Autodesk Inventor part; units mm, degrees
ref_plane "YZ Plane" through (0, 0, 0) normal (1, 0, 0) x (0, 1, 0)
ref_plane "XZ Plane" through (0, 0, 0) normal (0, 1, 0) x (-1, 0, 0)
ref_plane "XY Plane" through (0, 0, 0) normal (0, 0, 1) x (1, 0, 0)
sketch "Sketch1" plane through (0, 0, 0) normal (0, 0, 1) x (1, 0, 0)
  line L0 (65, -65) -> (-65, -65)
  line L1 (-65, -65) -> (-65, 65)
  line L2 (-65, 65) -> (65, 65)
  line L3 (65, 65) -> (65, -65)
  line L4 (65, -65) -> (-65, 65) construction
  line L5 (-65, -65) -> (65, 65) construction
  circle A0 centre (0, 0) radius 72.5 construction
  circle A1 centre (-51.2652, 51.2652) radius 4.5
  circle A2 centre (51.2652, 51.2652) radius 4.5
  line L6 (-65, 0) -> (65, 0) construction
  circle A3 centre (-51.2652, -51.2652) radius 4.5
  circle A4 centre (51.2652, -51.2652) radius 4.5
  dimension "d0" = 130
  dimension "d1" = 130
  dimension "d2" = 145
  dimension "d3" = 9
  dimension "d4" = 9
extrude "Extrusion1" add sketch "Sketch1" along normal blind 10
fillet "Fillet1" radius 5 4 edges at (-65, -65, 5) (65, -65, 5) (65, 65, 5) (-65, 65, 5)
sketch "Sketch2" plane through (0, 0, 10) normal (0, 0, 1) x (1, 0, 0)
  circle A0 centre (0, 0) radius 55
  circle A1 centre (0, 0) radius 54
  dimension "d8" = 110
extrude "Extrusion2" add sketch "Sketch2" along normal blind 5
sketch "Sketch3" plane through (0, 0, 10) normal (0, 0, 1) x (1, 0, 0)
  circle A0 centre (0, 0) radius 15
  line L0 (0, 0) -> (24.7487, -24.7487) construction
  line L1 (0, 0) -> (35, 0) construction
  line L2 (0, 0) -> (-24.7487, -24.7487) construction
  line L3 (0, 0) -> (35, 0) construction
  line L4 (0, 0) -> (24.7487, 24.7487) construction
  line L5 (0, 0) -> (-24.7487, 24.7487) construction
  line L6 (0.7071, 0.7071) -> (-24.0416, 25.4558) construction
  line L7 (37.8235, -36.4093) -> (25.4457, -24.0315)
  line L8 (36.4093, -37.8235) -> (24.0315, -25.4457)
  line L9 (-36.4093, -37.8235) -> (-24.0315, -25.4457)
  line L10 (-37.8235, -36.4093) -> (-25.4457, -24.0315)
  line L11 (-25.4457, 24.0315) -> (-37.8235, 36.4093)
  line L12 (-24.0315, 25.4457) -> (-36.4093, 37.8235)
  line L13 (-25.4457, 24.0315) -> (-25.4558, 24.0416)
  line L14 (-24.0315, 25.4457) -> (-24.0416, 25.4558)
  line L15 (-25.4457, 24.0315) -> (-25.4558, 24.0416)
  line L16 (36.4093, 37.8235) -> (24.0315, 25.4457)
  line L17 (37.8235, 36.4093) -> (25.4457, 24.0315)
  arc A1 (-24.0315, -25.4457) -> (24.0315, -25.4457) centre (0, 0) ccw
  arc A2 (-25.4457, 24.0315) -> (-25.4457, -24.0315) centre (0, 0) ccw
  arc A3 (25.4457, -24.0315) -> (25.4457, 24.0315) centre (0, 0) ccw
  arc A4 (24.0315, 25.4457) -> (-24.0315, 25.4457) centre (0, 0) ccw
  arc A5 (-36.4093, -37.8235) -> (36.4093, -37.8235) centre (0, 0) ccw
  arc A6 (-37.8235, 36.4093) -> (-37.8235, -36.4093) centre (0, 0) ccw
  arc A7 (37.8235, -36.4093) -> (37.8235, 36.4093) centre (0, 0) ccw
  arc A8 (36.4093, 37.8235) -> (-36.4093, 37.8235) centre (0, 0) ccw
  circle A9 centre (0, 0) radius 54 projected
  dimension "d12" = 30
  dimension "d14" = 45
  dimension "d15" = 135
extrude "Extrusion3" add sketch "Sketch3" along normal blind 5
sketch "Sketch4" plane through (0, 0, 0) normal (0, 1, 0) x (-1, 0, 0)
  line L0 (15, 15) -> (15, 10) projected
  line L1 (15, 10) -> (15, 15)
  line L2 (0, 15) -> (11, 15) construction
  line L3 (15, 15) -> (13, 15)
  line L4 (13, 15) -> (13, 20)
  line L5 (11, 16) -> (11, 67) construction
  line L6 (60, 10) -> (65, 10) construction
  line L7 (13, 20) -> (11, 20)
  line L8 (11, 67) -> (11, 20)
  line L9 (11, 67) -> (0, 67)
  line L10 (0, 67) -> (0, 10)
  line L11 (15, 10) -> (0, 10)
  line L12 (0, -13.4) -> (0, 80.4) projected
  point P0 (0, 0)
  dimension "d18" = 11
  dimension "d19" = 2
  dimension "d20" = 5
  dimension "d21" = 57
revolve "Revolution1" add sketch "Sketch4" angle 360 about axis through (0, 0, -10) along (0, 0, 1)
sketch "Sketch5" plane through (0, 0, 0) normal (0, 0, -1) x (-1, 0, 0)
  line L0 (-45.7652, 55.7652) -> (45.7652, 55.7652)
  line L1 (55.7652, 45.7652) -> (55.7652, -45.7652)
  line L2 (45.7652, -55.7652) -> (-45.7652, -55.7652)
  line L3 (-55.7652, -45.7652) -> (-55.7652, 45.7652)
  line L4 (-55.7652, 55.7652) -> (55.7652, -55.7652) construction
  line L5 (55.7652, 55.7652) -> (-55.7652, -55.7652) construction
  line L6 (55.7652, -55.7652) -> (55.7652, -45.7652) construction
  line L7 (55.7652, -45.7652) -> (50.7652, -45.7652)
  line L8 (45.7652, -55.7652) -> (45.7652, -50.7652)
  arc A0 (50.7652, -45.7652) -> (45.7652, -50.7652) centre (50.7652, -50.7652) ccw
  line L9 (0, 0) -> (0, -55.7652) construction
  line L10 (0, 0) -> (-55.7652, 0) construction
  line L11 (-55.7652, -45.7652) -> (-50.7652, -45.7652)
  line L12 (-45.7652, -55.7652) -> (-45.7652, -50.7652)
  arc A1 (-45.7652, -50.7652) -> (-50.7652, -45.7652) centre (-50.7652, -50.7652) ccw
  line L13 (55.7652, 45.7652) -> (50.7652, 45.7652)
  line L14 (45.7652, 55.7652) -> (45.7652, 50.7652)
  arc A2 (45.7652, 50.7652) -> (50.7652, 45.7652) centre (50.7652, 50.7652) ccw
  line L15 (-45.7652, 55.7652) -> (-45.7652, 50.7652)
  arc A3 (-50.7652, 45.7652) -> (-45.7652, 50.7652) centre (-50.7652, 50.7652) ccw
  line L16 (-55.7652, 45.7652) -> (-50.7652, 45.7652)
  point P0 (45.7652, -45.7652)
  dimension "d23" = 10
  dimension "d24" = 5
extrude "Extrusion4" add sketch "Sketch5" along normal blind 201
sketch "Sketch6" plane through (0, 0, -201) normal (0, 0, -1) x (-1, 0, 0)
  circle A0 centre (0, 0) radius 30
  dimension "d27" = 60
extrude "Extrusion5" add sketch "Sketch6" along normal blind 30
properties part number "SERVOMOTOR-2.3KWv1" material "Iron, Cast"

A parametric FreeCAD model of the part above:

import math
import FreeCAD as App
import Part
import Sketcher


def edges_at(feature, points):
    """Names of the edges that pass closest to the given points."""
    edges = feature.Shape.Edges
    near = lambda p: min(range(len(edges)), key=lambda i: edges[i].distToShape(Part.Vertex(*p))[0])
    return sorted({f"Edge{near(p) + 1}" for p in points})

doc = App.newDocument("Part")
body = doc.addObject("PartDesign::Body", "Body")

sketch1 = doc.addObject("Sketcher::SketchObject", "Sketch")
body.addObject(sketch1)
sketch1.AttachmentSupport = (doc.XY_Plane, [""])
sketch1.MapMode = "FlatFace"
sketch1.addGeometry([
    Part.LineSegment(App.Vector(-65, -65, 0), App.Vector(65, -65, 0)),
    Part.LineSegment(App.Vector(65, -65, 0), App.Vector(65, 65, 0)),
    Part.LineSegment(App.Vector(65, 65, 0), App.Vector(-65, 65, 0)),
    Part.LineSegment(App.Vector(-65, 65, 0), App.Vector(-65, -65, 0)),
    Part.Circle(App.Vector(-51.3, -51.3, 0), App.Vector(0, 0, 1), 4.5),
    Part.Circle(App.Vector(51.3, -51.3, 0), App.Vector(0, 0, 1), 4.5),
    Part.Circle(App.Vector(-51.3, 51.3, 0), App.Vector(0, 0, 1), 4.5),
    Part.Circle(App.Vector(51.3, 51.3, 0), App.Vector(0, 0, 1), 4.5),
], False)
sketch1.addConstraint([
    Sketcher.Constraint("Coincident", 0, 2, 1, 1),
    Sketcher.Constraint("Coincident", 1, 2, 2, 1),
    Sketcher.Constraint("Coincident", 2, 2, 3, 1),
    Sketcher.Constraint("Coincident", 3, 2, 0, 1),
    Sketcher.Constraint("Horizontal", 0),
    Sketcher.Constraint("Vertical", 1),
    Sketcher.Constraint("Horizontal", 2),
    Sketcher.Constraint("Vertical", 3),
    Sketcher.Constraint("Equal", 4, 5),
    Sketcher.Constraint("Equal", 5, 6),
    Sketcher.Constraint("Equal", 6, 7),
    Sketcher.Constraint("Symmetric", 5, 3, 6, 3, -1, 1),
    Sketcher.Constraint("Symmetric", 4, 3, 7, 3, -1, 1),
    Sketcher.Constraint("Symmetric", 0, 2, 2, 2, -1, 1),
    Sketcher.Constraint("Symmetric", 4, 3, 5, 3, -2),
    Sketcher.Constraint("Equal", 2, 1),
    Sketcher.Constraint("Diameter", 4, 9.0),
    Sketcher.Constraint("DistanceX", 0, 1, 0, 2, 130.0),
    Sketcher.Constraint("DistanceX", 4, 3, -1, 1, 51.2652),
    Sketcher.Constraint("DistanceY", 4, 3, -1, 1, 51.2652),
])
pad1 = doc.addObject("PartDesign::Pad", "Pad")
body.addObject(pad1)
pad1.Profile = sketch1
pad1.Length = 10
doc.recompute()

fillet = doc.addObject("PartDesign::Fillet", "Fillet")
body.addObject(fillet)
fillet.Base = (pad1, edges_at(pad1, [
    (-65, -65, 5),
    (65, -65, 5),
    (65, 65, 5),
    (-65, 65, 5),
]))
fillet.Radius = 5

sketch2 = doc.addObject("Sketcher::SketchObject", "Sketch001")
body.addObject(sketch2)
sketch2.AttachmentSupport = (doc.XY_Plane, [""])
sketch2.MapMode = "FlatFace"
sketch2.AttachmentOffset = App.Placement(App.Vector(0, 0, 10), App.Rotation())
sketch2.addGeometry([
    Part.Circle(App.Vector(0, 0, 0), App.Vector(0, 0, 1), 55),
    Part.Circle(App.Vector(0, 0, 0), App.Vector(0, 0, 1), 54),
], False)
sketch2.addConstraint([
    Sketcher.Constraint("Coincident", 0, 3, -1, 1),
    Sketcher.Constraint("Coincident", 1, 3, -1, 1),
    Sketcher.Constraint("Diameter", 0, 110.0),
    Sketcher.Constraint("Diameter", 1, 108.0),
])
pad2 = doc.addObject("PartDesign::Pad", "Pad001")
body.addObject(pad2)
pad2.Profile = sketch2
pad2.Length = 5

sketch3 = doc.addObject("Sketcher::SketchObject", "Sketch002")
body.addObject(sketch3)
sketch3.AttachmentSupport = (doc.XY_Plane, [""])
sketch3.MapMode = "FlatFace"
sketch3.AttachmentOffset = App.Placement(App.Vector(0, 0, 10), App.Rotation())
sketch3.addGeometry([
    Part.Circle(App.Vector(0, 0, 0), App.Vector(0, 0, 1), 54),
    Part.LineSegment(App.Vector(24, -25, 0), App.Vector(36, -38, 0)),
    Part.ArcOfCircle(Part.Circle(App.Vector(0, 0, 0), App.Vector(0, 0, 1), 53), math.radians(-134), math.radians(-46)),
    Part.LineSegment(App.Vector(-36, -38, 0), App.Vector(-24, -25, 0)),
    Part.ArcOfCircle(Part.Circle(App.Vector(0, 0, 0), App.Vector(0, 0, 1), 35), math.radians(-133), math.radians(-47)),
    Part.LineSegment(App.Vector(-25, -24, 0), App.Vector(-38, -36, 0)),
    Part.ArcOfCircle(Part.Circle(App.Vector(0, 0, 0), App.Vector(0, 0, 1), 53), math.radians(136), math.radians(224)),
    Part.LineSegment(App.Vector(-38, 36, 0), App.Vector(-25, 24, 0)),
    Part.ArcOfCircle(Part.Circle(App.Vector(0, 0, 0), App.Vector(0, 0, 1), 35), math.radians(137), math.radians(223)),
    Part.Circle(App.Vector(0, 0, 0), App.Vector(0, 0, 1), 15),
    Part.ArcOfCircle(Part.Circle(App.Vector(0, 0, 0), App.Vector(0, 0, 1), 53), math.radians(-44), math.radians(44)),
    Part.LineSegment(App.Vector(38, -36, 0), App.Vector(25, -24, 0)),
    Part.ArcOfCircle(Part.Circle(App.Vector(0, 0, 0), App.Vector(0, 0, 1), 35), math.radians(-43), math.radians(43)),
    Part.LineSegment(App.Vector(25, 24, 0), App.Vector(38, 36, 0)),
    Part.ArcOfCircle(Part.Circle(App.Vector(0, 0, 0), App.Vector(0, 0, 1), 35), math.radians(47), math.radians(133)),
    Part.LineSegment(App.Vector(-24, 25, 0), App.Vector(-36, 38, 0)),
    Part.ArcOfCircle(Part.Circle(App.Vector(0, 0, 0), App.Vector(0, 0, 1), 53), math.radians(46), math.radians(134)),
    Part.LineSegment(App.Vector(36, 38, 0), App.Vector(24, 25, 0)),
], False)
sketch3.addConstraint([
    Sketcher.Constraint("Coincident", 1, 2, 2, 2),
    Sketcher.Constraint("Coincident", 2, 1, 3, 1),
    Sketcher.Constraint("Coincident", 3, 2, 4, 1),
    Sketcher.Constraint("Coincident", 4, 2, 1, 1),
    Sketcher.Constraint("Coincident", 5, 2, 6, 2),
    Sketcher.Constraint("Coincident", 6, 1, 7, 1),
    Sketcher.Constraint("Coincident", 7, 2, 8, 1),
    Sketcher.Constraint("Coincident", 8, 2, 5, 1),
    Sketcher.Constraint("Coincident", 10, 1, 11, 1),
    Sketcher.Constraint("Coincident", 11, 2, 12, 1),
    Sketcher.Constraint("Coincident", 12, 2, 13, 1),
    Sketcher.Constraint("Coincident", 13, 2, 10, 2),
    Sketcher.Constraint("Coincident", 14, 2, 15, 1),
    Sketcher.Constraint("Coincident", 15, 2, 16, 2),
    Sketcher.Constraint("Coincident", 16, 1, 17, 1),
    Sketcher.Constraint("Coincident", 17, 2, 14, 1),
    Sketcher.Constraint("Coincident", 0, 3, -1, 1),
    Sketcher.Constraint("Coincident", 2, 3, -1, 1),
    Sketcher.Constraint("Coincident", 4, 3, -1, 1),
    Sketcher.Constraint("Coincident", 6, 3, -1, 1),
    Sketcher.Constraint("Coincident", 8, 3, -1, 1),
    Sketcher.Constraint("Coincident", 9, 3, -1, 1),
    Sketcher.Constraint("Coincident", 10, 3, -1, 1),
    Sketcher.Constraint("Coincident", 12, 3, -1, 1),
    Sketcher.Constraint("Coincident", 14, 3, -1, 1),
    Sketcher.Constraint("Coincident", 16, 3, -1, 1),
    Sketcher.Constraint("Equal", 2, 6),
    Sketcher.Constraint("Equal", 4, 8),
    Sketcher.Constraint("Equal", 6, 10),
    Sketcher.Constraint("Equal", 8, 12),
    Sketcher.Constraint("Equal", 12, 14),
    Sketcher.Constraint("Equal", 10, 16),
    Sketcher.Constraint("Perpendicular", 1, 3),
    Sketcher.Constraint("Parallel", 3, 5),
    Sketcher.Constraint("Perpendicular", 5, 7),
    Sketcher.Constraint("Parallel", 7, 11),
    Sketcher.Constraint("Perpendicular", 11, 13),
    Sketcher.Constraint("Perpendicular", 13, 15),
    Sketcher.Constraint("Perpendicular", 15, 17),
    Sketcher.Constraint("Horizontal", 1, 2, 2, 1),
    Sketcher.Constraint("Horizontal", 3, 2, 4, 2),
    Sketcher.Constraint("Horizontal", 5, 2, 10, 1),
    Sketcher.Constraint("Horizontal", 7, 2, 12, 2),
    Sketcher.Constraint("Horizontal", 15, 2, 16, 1),
    Sketcher.Constraint("Vertical", 5, 2, 6, 1),
    Sketcher.Constraint("Vertical", 3, 2, 14, 2),
    Sketcher.Constraint("Equal", 3, 5),
    Sketcher.Constraint("Diameter", 9, 30.0),
    Sketcher.Constraint("Diameter", 0, 108.0),
    Sketcher.Constraint("Radius", 4, 35.0),
    Sketcher.Constraint("Radius", 2, 52.5),
    Sketcher.Constraint("DistanceX", 5, 2, 3, 2, 13.792),
])
pad3 = doc.addObject("PartDesign::Pad", "Pad002")
body.addObject(pad3)
pad3.Profile = sketch3
pad3.Length = 5

sketch4 = doc.addObject("Sketcher::SketchObject", "Sketch003")
body.addObject(sketch4)
sketch4.AttachmentSupport = (doc.XZ_Plane, [""])
sketch4.MapMode = "FlatFace"
sketch4.addGeometry([
    Part.LineSegment(App.Vector(-15, 10, 0), App.Vector(-15, 15, 0)),
    Part.LineSegment(App.Vector(-15, 15, 0), App.Vector(-13, 15, 0)),
    Part.LineSegment(App.Vector(-13, 15, 0), App.Vector(-13, 20, 0)),
    Part.LineSegment(App.Vector(-13, 20, 0), App.Vector(-11, 20, 0)),
    Part.LineSegment(App.Vector(-11, 20, 0), App.Vector(-11, 67, 0)),
    Part.LineSegment(App.Vector(-11, 67, 0), App.Vector(0, 67, 0)),
    Part.LineSegment(App.Vector(0, 67, 0), App.Vector(0, 10, 0)),
    Part.LineSegment(App.Vector(0, 10, 0), App.Vector(-15, 10, 0)),
], False)
sketch4.addConstraint([
    Sketcher.Constraint("Coincident", 0, 2, 1, 1),
    Sketcher.Constraint("Coincident", 1, 2, 2, 1),
    Sketcher.Constraint("Coincident", 2, 2, 3, 1),
    Sketcher.Constraint("Coincident", 3, 2, 4, 1),
    Sketcher.Constraint("Coincident", 4, 2, 5, 1),
    Sketcher.Constraint("Coincident", 5, 2, 6, 1),
    Sketcher.Constraint("Coincident", 6, 2, 7, 1),
    Sketcher.Constraint("Coincident", 7, 2, 0, 1),
    Sketcher.Constraint("Vertical", 0),
    Sketcher.Constraint("Horizontal", 1),
    Sketcher.Constraint("Vertical", 2),
    Sketcher.Constraint("Horizontal", 3),
    Sketcher.Constraint("Vertical", 4),
    Sketcher.Constraint("Horizontal", 5),
    Sketcher.Constraint("Vertical", 6),
    Sketcher.Constraint("Horizontal", 7),
    Sketcher.Constraint("PointOnObject", 5, 2, -2),
    Sketcher.Constraint("Equal", 1, 3),
    Sketcher.Constraint("Equal", 0, 2),
    Sketcher.Constraint("DistanceX", 1, 1, 1, 2, 2.0),
    Sketcher.Constraint("DistanceX", 5, 1, 5, 2, 11.0),
    Sketcher.Constraint("DistanceY", 0, 1, 0, 2, 5.0),
    Sketcher.Constraint("DistanceY", 6, 2, 6, 1, 57.0),
    Sketcher.Constraint("DistanceY", -1, 1, 0, 2, 15.0),
])
revolution = doc.addObject("PartDesign::Revolution", "Revolution")
body.addObject(revolution)
revolution.Profile = sketch4
revolution.ReferenceAxis = (sketch4, ["V_Axis"])
revolution.Angle = 360

sketch5 = doc.addObject("Sketcher::SketchObject", "Sketch004")
body.addObject(sketch5)
sketch5.AttachmentSupport = (doc.XY_Plane, [""])
sketch5.MapMode = "FlatFace"
sketch5.addGeometry([
    Part.LineSegment(App.Vector(-46, 56, 0), App.Vector(46, 56, 0)),
    Part.LineSegment(App.Vector(46, 56, 0), App.Vector(46, 51, 0)),
    Part.ArcOfCircle(Part.Circle(App.Vector(51, 51, 0), App.Vector(0, 0, 1), 5), math.radians(180), math.radians(270)),
    Part.LineSegment(App.Vector(51, 46, 0), App.Vector(56, 46, 0)),
    Part.LineSegment(App.Vector(56, 46, 0), App.Vector(56, -46, 0)),
    Part.LineSegment(App.Vector(56, -46, 0), App.Vector(51, -46, 0)),
    Part.ArcOfCircle(Part.Circle(App.Vector(51, -51, 0), App.Vector(0, 0, 1), 5), math.radians(90), math.radians(180)),
    Part.LineSegment(App.Vector(46, -51, 0), App.Vector(46, -56, 0)),
    Part.LineSegment(App.Vector(46, -56, 0), App.Vector(-46, -56, 0)),
    Part.LineSegment(App.Vector(-46, -56, 0), App.Vector(-46, -51, 0)),
    Part.ArcOfCircle(Part.Circle(App.Vector(-51, -51, 0), App.Vector(0, 0, 1), 5), math.radians(0), math.radians(90)),
    Part.LineSegment(App.Vector(-51, -46, 0), App.Vector(-56, -46, 0)),
    Part.LineSegment(App.Vector(-56, -46, 0), App.Vector(-56, 46, 0)),
    Part.LineSegment(App.Vector(-56, 46, 0), App.Vector(-51, 46, 0)),
    Part.ArcOfCircle(Part.Circle(App.Vector(-51, 51, 0), App.Vector(0, 0, 1), 5), math.radians(-90), math.radians(0)),
    Part.LineSegment(App.Vector(-46, 51, 0), App.Vector(-46, 56, 0)),
], False)
sketch5.addConstraint([
    Sketcher.Constraint("Coincident", 0, 2, 1, 1),
    Sketcher.Constraint("Tangent", 1, 2, 2, 1),
    Sketcher.Constraint("Tangent", 2, 2, 3, 1),
    Sketcher.Constraint("Coincident", 3, 2, 4, 1),
    Sketcher.Constraint("Coincident", 4, 2, 5, 1),
    Sketcher.Constraint("Tangent", 5, 2, 6, 1),
    Sketcher.Constraint("Tangent", 6, 2, 7, 1),
    Sketcher.Constraint("Coincident", 7, 2, 8, 1),
    Sketcher.Constraint("Coincident", 8, 2, 9, 1),
    Sketcher.Constraint("Tangent", 9, 2, 10, 1),
    Sketcher.Constraint("Tangent", 10, 2, 11, 1),
    Sketcher.Constraint("Coincident", 11, 2, 12, 1),
    Sketcher.Constraint("Coincident", 12, 2, 13, 1),
    Sketcher.Constraint("Tangent", 13, 2, 14, 1),
    Sketcher.Constraint("Tangent", 14, 2, 15, 1),
    Sketcher.Constraint("Coincident", 15, 2, 0, 1),
    Sketcher.Constraint("Horizontal", 0),
    Sketcher.Constraint("Vertical", 1),
    Sketcher.Constraint("Horizontal", 3),
    Sketcher.Constraint("Vertical", 4),
    Sketcher.Constraint("Horizontal", 5),
    Sketcher.Constraint("Vertical", 7),
    Sketcher.Constraint("Horizontal", 8),
    Sketcher.Constraint("Vertical", 9),
    Sketcher.Constraint("Horizontal", 11),
    Sketcher.Constraint("Vertical", 12),
    Sketcher.Constraint("Horizontal", 13),
    Sketcher.Constraint("Vertical", 15),
    Sketcher.Constraint("Equal", 2, 6),
    Sketcher.Constraint("Equal", 6, 10),
    Sketcher.Constraint("Equal", 10, 14),
    Sketcher.Constraint("Symmetric", 2, 3, 10, 3, -1, 1),
    Sketcher.Constraint("Symmetric", 6, 3, 14, 3, -1, 1),
    Sketcher.Constraint("Symmetric", 6, 3, 10, 3, -2),
    Sketcher.Constraint("Equal", 5, 11),
    Sketcher.Constraint("Equal", 13, 1),
    Sketcher.Constraint("Equal", 8, 4),
    Sketcher.Constraint("Equal", 1, 7),
    Sketcher.Constraint("Radius", 2, 5.0),
    Sketcher.Constraint("DistanceX", 3, 1, 3, 2, 5.0),
    Sketcher.Constraint("DistanceX", 0, 1, 0, 2, 91.5304),
])
pad4 = doc.addObject("PartDesign::Pad", "Pad003")
body.addObject(pad4)
pad4.Profile = sketch5
pad4.Length = 201
pad4.Reversed = True

sketch6 = doc.addObject("Sketcher::SketchObject", "Sketch005")
body.addObject(sketch6)
sketch6.AttachmentSupport = (doc.XY_Plane, [""])
sketch6.MapMode = "FlatFace"
sketch6.AttachmentOffset = App.Placement(App.Vector(0, 0, -201), App.Rotation())
sketch6.addGeometry(Part.Circle(App.Vector(0, 0, 0), App.Vector(0, 0, 1), 30), False)
sketch6.addConstraint([
    Sketcher.Constraint("Coincident", 0, 3, -1, 1),
    Sketcher.Constraint("Diameter", 0, 60.0),
])
pad5 = doc.addObject("PartDesign::Pad", "Pad004")
body.addObject(pad5)
pad5.Profile = sketch6
pad5.Length = 30
pad5.Reversed = True

doc.recompute()
